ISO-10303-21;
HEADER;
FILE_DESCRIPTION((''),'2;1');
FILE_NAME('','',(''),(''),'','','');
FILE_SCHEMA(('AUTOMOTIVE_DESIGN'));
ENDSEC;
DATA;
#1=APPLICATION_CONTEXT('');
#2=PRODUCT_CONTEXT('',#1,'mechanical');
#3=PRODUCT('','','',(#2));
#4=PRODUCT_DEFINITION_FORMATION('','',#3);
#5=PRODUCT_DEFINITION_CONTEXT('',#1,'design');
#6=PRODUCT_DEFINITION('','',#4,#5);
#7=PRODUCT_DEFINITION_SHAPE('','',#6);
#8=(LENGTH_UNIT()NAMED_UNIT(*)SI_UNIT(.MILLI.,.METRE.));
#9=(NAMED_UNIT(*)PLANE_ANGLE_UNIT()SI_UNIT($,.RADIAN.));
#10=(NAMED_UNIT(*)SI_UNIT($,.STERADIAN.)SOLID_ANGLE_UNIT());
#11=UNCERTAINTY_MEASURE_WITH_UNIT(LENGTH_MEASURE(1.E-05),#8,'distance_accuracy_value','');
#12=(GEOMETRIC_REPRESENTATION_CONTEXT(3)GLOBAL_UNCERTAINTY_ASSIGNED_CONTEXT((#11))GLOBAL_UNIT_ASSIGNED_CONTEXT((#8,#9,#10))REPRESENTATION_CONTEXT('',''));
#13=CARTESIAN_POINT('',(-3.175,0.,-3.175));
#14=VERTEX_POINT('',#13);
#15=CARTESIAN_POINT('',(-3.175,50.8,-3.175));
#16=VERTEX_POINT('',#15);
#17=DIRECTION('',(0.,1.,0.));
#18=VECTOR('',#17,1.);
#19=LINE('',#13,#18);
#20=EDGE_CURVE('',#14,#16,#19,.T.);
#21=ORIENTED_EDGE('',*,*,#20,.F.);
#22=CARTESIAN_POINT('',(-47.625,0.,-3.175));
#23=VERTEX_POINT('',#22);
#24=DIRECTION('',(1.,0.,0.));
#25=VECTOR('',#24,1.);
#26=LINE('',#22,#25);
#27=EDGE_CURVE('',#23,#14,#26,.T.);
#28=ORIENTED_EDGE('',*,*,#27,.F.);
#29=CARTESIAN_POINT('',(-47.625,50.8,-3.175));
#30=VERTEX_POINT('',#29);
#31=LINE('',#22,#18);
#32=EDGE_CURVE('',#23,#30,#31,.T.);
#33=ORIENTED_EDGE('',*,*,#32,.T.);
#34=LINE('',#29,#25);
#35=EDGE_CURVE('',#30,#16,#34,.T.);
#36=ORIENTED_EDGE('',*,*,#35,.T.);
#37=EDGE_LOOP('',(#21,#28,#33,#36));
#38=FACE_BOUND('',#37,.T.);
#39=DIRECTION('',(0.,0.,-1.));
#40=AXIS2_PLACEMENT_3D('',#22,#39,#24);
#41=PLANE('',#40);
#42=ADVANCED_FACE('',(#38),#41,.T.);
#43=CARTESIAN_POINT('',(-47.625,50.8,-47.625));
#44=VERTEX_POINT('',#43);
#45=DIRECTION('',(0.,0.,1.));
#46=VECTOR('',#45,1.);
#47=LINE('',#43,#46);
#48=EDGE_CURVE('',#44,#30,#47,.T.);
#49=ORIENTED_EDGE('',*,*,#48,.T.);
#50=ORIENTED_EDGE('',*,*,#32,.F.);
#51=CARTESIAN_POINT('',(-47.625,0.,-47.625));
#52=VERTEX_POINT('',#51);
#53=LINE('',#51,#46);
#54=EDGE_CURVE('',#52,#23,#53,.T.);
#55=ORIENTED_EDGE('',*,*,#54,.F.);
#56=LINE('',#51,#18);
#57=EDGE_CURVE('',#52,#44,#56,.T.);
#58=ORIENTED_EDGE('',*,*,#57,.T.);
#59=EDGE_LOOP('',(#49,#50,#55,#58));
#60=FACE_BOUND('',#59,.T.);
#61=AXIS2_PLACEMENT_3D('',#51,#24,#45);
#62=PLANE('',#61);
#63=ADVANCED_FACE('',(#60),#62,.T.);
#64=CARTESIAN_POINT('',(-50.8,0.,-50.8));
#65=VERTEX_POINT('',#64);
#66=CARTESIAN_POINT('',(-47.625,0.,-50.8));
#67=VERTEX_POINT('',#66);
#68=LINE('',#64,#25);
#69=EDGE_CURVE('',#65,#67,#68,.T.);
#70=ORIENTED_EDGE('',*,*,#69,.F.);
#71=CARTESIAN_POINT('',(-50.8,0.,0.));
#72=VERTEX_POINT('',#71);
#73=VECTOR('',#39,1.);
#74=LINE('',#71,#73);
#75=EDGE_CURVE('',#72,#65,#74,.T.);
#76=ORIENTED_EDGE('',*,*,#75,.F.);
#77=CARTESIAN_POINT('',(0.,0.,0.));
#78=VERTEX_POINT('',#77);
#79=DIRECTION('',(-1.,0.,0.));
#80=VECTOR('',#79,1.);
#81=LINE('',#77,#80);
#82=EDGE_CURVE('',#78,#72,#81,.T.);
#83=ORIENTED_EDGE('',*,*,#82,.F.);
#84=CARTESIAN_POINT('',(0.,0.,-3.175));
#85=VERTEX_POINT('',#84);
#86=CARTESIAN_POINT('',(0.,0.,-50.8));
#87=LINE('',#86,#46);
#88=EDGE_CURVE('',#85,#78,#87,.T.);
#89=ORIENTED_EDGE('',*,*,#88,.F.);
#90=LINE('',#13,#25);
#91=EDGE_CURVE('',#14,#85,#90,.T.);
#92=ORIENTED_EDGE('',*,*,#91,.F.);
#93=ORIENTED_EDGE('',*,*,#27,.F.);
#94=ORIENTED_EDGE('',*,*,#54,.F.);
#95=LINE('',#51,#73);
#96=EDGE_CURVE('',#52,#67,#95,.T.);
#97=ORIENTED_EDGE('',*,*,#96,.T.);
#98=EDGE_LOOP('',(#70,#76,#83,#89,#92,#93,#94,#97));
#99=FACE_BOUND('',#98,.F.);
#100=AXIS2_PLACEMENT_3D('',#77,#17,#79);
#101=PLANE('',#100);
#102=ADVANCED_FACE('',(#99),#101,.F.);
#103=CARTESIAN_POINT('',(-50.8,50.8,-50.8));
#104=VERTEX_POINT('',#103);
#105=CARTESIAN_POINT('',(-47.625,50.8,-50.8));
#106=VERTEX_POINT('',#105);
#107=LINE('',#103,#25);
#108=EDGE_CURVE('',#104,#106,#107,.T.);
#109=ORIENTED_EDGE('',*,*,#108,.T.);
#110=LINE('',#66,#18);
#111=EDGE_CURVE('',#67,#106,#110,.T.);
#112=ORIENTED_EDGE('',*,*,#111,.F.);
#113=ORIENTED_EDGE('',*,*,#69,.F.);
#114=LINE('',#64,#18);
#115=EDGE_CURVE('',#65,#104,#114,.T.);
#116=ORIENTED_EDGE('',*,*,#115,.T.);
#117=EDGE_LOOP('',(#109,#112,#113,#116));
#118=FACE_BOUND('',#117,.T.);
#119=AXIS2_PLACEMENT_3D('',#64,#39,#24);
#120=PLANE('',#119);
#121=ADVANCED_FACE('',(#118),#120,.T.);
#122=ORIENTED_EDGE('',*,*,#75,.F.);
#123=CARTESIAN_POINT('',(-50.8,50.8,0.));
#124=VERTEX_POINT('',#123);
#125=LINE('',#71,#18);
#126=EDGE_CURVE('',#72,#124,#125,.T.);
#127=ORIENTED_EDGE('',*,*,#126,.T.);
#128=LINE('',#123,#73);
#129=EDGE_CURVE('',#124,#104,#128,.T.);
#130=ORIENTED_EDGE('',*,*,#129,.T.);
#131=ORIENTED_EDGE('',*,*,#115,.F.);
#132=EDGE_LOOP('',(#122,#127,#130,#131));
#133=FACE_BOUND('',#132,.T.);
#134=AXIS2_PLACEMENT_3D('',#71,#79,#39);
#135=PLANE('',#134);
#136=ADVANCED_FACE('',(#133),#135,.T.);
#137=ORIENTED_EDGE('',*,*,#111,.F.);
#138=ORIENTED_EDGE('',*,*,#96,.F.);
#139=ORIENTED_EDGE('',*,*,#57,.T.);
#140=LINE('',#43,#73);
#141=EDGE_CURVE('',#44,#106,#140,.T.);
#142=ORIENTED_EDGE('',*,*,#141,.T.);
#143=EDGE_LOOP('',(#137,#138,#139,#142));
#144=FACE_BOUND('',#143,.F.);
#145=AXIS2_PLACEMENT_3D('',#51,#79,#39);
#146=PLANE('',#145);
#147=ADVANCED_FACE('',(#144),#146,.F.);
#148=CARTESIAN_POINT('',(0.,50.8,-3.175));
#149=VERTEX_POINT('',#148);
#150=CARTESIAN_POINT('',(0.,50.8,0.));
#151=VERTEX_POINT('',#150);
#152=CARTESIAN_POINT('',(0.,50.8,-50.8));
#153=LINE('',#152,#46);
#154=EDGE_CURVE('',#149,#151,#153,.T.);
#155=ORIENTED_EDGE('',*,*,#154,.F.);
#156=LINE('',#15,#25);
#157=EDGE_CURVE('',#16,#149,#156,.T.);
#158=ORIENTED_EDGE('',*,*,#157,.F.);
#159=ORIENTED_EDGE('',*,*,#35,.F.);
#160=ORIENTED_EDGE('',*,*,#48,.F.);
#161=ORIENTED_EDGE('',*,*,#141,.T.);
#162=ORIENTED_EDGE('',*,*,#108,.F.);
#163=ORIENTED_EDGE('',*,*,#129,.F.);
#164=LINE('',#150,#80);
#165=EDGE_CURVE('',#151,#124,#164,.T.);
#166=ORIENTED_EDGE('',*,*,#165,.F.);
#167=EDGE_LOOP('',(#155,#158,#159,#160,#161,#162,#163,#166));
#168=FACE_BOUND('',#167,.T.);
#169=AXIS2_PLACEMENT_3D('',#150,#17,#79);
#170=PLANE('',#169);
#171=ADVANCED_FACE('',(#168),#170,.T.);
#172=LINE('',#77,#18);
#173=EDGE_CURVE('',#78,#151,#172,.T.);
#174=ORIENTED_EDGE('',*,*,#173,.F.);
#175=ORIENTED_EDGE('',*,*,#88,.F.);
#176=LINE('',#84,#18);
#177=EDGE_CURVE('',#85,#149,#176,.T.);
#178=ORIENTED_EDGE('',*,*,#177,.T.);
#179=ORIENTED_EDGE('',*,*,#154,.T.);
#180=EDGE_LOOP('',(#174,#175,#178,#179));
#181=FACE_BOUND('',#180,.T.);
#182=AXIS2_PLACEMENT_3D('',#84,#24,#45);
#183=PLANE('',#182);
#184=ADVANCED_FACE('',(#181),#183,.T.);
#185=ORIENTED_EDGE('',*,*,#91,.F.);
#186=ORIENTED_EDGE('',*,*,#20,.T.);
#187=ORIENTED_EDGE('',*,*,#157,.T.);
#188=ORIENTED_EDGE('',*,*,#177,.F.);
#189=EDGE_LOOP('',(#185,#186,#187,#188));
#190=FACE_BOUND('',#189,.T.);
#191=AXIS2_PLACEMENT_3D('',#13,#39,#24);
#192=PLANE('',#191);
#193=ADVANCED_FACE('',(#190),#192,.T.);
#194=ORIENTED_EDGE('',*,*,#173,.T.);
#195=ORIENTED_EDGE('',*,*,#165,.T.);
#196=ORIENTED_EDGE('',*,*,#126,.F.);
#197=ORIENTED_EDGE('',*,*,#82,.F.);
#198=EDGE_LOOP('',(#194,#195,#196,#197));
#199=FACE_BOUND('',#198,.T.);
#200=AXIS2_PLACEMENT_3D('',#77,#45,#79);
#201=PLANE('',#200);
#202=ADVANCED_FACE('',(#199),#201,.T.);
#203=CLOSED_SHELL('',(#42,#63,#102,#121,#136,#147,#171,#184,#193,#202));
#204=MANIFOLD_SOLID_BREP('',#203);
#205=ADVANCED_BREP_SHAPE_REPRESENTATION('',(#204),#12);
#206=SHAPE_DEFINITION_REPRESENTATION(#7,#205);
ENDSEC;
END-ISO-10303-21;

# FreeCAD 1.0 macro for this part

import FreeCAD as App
import Part
import Sketcher
from FreeCAD import Vector
Q = App.Units.Quantity


def add_polygon(sketch, points):
    """Adds a closed chain of lines whose ends are joined by coincident constraints."""
    first, n = sketch.GeometryCount, len(points)
    for a, b in zip(points, points[1:] + points[:1]):
        sketch.addGeometry(Part.LineSegment(App.Vector(*a, 0), App.Vector(*b, 0)), False)
    for i in range(n):
        sketch.addConstraint(Sketcher.Constraint("Coincident", first + i, 2, first + (i + 1) % n, 1))

doc = App.newDocument("Part")
body = doc.addObject("PartDesign::Body", "Body")

# Sketch on XZ plane
sketch1 = body.newObject("Sketcher::SketchObject", "Sketch")
sketch1.AttachmentSupport = (doc.getObject("XZ_Plane"), [""])
sketch1.MapMode = "FlatFace"
add_polygon(sketch1, [(-50.8, 0), (0, 0), (0, -3.2), (-47.6, -3.2), (-47.6, -50.8), (-50.8, -50.8)])  # lines 0-5
sketch1.addConstraint([
    Sketcher.Constraint("Horizontal", 0),
    Sketcher.Constraint("Vertical", 1),
    Sketcher.Constraint("Horizontal", 2),
    Sketcher.Constraint("Vertical", 3),
    Sketcher.Constraint("Horizontal", 4),
    Sketcher.Constraint("Vertical", 5),
    Sketcher.Constraint("Coincident", 0, 2, -1, 1),
    Sketcher.Constraint("Equal", 4, 1),
    Sketcher.Constraint("Equal", 2, 3),
    Sketcher.Constraint("DistanceX", 0, 1, 0, 2, Q("2 in")),
    Sketcher.Constraint("DistanceX", 4, 2, 4, 1, Q("0.125 in")),
])
pad1 = body.newObject("PartDesign::Pad", "Pad")
pad1.Profile = sketch1
pad1.Length = Q("2 in")
pad1.Reversed = True

doc.recompute()
